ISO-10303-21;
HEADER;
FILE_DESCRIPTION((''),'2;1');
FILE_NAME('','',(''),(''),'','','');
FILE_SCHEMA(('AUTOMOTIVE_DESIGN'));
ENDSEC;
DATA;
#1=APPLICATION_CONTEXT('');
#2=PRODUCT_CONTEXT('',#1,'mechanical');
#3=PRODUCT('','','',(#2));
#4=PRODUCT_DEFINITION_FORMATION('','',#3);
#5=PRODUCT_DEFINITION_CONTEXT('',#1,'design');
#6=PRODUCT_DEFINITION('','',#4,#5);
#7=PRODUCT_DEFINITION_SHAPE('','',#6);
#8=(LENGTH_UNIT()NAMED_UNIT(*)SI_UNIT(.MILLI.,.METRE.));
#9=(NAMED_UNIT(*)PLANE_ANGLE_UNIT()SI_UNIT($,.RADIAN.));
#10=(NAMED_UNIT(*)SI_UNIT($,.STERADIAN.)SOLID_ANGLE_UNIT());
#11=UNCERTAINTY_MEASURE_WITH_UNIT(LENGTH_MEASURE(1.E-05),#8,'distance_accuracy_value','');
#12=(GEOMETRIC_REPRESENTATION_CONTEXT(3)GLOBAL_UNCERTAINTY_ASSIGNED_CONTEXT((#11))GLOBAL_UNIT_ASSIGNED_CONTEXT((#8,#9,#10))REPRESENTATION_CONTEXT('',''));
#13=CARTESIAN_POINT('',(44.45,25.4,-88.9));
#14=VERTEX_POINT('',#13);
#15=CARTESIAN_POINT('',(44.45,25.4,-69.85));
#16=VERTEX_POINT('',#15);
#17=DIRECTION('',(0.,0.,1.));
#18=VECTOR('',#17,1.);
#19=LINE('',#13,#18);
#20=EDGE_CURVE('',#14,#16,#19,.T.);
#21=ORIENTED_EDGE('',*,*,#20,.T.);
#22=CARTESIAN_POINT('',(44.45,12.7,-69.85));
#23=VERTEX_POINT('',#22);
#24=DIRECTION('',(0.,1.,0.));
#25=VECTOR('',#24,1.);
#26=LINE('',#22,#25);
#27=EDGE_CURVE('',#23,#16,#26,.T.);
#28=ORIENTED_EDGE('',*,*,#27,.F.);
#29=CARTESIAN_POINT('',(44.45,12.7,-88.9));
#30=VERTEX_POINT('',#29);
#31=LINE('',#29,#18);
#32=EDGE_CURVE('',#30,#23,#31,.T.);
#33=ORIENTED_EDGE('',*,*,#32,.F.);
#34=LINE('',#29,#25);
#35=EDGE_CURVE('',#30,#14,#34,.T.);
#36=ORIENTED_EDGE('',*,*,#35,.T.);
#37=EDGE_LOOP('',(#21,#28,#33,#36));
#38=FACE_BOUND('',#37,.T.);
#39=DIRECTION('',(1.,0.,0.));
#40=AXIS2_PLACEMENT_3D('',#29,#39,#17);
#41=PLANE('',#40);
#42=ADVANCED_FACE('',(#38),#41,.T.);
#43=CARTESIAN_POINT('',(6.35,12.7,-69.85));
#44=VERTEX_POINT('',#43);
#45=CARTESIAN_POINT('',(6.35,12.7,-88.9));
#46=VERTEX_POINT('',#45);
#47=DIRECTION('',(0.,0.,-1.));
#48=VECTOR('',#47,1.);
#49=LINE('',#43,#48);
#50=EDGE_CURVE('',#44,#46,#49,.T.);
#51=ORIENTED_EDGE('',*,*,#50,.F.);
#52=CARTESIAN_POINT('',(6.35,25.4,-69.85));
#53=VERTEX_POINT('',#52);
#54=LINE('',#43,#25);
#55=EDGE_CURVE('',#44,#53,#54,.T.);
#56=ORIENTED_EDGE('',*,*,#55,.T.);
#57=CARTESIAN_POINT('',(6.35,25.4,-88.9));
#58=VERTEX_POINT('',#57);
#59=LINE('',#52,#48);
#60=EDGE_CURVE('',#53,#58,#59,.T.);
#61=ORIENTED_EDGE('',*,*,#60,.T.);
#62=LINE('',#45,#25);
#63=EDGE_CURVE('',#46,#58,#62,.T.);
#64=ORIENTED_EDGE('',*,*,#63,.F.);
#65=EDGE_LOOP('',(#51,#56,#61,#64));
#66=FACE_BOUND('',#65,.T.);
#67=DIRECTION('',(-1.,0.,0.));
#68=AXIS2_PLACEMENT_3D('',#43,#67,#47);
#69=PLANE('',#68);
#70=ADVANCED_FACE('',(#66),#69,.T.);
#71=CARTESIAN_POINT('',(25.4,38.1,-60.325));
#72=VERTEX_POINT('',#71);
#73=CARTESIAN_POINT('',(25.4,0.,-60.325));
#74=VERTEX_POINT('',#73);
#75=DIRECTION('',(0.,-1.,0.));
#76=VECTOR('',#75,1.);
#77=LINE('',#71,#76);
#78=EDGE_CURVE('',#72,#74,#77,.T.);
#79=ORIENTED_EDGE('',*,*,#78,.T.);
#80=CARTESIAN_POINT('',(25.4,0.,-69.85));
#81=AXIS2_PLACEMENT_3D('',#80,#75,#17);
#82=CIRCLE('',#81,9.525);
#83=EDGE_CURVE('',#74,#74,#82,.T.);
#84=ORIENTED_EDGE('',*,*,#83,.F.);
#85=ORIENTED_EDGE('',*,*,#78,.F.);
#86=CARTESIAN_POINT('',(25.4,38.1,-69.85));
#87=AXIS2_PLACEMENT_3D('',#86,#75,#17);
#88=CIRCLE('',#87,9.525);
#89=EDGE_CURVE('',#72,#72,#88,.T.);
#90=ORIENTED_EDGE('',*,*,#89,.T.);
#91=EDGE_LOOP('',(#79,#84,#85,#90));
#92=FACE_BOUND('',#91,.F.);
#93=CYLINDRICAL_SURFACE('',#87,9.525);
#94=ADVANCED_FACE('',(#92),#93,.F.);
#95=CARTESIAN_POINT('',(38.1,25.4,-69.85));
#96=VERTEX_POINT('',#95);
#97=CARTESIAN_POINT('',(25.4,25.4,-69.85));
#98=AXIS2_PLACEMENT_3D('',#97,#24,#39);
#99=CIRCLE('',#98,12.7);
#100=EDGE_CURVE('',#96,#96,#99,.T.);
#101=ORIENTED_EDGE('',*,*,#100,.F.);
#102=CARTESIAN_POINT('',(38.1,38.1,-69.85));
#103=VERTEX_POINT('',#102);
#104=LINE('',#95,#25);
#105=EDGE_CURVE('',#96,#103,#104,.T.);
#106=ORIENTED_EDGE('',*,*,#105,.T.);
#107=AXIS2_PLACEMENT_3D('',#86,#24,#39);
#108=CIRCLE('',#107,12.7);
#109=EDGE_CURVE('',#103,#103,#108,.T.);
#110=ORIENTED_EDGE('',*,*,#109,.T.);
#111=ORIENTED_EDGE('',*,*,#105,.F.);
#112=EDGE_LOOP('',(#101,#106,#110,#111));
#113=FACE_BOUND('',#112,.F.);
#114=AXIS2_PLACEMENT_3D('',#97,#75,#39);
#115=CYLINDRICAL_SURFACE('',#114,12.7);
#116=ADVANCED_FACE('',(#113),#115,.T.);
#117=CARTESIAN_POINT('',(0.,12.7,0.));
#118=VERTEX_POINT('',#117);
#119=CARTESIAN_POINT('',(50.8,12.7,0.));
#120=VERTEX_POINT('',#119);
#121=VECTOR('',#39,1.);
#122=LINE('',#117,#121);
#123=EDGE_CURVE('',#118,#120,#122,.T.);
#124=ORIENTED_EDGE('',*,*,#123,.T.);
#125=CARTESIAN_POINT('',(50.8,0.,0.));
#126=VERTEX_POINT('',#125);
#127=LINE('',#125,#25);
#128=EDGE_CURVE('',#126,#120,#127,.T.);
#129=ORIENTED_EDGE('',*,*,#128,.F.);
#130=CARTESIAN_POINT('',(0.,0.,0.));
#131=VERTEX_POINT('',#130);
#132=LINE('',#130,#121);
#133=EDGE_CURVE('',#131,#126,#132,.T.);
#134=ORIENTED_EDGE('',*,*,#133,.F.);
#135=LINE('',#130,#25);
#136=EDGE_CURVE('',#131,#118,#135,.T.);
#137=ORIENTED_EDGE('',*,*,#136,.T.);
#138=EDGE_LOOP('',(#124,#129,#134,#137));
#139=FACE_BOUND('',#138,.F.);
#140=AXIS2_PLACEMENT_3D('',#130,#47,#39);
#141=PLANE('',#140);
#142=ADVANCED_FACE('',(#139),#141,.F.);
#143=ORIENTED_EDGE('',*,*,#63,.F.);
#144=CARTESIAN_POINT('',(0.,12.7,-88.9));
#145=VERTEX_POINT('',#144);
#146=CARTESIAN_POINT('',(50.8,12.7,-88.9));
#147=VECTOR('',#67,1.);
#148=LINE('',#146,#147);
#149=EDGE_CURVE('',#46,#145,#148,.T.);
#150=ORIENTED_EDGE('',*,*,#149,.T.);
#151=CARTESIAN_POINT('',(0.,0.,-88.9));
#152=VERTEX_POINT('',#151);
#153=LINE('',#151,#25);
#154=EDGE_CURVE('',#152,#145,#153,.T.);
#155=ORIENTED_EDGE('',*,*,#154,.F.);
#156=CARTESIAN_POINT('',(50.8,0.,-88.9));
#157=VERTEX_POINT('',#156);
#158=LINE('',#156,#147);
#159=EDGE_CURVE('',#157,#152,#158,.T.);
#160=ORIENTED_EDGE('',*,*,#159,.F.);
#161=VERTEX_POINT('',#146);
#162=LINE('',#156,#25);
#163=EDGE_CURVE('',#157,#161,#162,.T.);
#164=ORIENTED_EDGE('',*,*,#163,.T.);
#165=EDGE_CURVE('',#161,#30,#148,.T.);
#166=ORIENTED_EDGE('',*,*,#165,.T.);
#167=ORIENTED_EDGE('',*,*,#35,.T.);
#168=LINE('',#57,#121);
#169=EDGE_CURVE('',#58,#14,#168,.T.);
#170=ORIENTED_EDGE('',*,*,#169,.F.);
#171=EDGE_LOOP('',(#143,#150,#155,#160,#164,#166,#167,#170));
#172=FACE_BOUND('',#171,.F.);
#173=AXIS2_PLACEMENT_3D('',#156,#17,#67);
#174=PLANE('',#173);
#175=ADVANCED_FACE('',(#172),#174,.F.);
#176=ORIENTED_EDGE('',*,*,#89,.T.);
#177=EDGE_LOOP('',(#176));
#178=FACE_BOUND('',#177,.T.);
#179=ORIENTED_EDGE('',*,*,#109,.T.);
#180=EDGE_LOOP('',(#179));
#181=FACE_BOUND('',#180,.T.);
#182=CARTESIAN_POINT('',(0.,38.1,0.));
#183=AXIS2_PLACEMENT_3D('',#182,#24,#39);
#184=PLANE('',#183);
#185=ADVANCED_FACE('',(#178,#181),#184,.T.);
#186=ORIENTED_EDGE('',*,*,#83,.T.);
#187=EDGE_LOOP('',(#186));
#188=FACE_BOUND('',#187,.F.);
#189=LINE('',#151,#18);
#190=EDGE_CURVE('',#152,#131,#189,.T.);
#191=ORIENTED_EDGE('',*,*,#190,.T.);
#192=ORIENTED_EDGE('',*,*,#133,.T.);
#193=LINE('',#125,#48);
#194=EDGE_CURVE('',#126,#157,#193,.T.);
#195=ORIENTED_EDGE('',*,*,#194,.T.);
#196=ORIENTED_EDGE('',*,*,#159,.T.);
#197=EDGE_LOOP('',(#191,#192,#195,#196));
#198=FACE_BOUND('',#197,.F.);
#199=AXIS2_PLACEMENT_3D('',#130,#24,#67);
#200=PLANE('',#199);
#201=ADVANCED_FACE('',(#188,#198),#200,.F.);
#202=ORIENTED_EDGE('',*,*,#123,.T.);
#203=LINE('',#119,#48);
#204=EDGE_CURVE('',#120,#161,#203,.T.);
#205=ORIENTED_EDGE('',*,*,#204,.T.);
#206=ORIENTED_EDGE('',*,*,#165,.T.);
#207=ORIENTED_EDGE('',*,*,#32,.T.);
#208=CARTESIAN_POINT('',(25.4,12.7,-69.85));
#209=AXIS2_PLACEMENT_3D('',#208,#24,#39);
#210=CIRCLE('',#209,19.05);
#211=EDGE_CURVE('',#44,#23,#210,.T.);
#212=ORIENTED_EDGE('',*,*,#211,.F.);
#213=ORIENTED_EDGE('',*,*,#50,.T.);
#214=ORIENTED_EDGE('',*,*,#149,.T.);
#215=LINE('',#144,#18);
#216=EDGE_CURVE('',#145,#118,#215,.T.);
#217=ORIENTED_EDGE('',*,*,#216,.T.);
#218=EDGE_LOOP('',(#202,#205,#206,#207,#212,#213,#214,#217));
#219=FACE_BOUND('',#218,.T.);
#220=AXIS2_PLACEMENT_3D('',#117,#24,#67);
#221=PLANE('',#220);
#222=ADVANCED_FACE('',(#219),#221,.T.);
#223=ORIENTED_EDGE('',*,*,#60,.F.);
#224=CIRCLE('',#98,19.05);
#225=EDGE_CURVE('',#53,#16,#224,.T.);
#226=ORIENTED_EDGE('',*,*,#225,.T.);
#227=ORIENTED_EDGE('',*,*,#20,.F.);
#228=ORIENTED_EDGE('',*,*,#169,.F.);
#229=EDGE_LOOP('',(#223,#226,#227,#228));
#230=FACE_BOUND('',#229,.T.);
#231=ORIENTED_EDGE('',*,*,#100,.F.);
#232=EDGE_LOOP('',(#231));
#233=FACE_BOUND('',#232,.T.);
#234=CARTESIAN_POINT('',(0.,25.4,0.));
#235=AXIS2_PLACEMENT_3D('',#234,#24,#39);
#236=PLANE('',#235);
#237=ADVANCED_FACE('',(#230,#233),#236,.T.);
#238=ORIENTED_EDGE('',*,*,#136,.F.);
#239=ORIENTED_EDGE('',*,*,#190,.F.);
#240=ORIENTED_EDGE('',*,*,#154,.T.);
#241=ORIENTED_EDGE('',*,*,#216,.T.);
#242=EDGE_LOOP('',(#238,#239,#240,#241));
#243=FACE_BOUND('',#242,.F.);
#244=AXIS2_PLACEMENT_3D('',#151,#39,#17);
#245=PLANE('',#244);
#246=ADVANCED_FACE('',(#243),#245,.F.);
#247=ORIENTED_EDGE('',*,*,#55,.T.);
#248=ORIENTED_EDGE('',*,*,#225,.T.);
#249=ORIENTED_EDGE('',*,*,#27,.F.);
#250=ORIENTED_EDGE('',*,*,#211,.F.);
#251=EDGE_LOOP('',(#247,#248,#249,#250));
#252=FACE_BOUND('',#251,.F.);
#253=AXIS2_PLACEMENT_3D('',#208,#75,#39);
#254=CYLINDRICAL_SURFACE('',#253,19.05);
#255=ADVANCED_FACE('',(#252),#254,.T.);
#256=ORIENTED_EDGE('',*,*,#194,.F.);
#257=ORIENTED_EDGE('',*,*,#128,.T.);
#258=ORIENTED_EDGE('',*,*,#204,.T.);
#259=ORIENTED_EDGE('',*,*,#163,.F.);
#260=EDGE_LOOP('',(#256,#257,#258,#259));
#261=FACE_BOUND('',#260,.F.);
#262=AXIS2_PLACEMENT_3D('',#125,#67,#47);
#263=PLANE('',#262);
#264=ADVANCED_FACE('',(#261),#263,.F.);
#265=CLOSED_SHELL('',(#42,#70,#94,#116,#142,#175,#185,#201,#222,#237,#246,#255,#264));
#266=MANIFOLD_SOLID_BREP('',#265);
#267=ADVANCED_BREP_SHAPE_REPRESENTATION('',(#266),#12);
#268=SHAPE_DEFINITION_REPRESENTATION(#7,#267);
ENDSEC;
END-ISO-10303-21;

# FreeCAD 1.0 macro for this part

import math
import FreeCAD as App
import Part
import Sketcher

V = App.Vector
Q = App.Units.Quantity

doc = App.newDocument("Part")
body = doc.addObject("PartDesign::Body", "Body")

# Sketch on XZ plane
sketch1 = doc.addObject("Sketcher::SketchObject", "Sketch")
body.addObject(sketch1)
sketch1.AttachmentSupport = (doc.XZ_Plane, [""])
sketch1.MapMode = "FlatFace"
sketch1.addGeometry([
    Part.LineSegment(V(0, -89, 0), V(0, 0, 0)),
    Part.LineSegment(V(0, 0, 0), V(51, 0, 0)),
    Part.LineSegment(V(51, 0, 0), V(51, -89, 0)),
    Part.LineSegment(V(51, -89, 0), V(0, -89, 0)),
], False)
sketch1.addConstraint([
    Sketcher.Constraint("Coincident", 0, 2, 1, 1),
    Sketcher.Constraint("Coincident", 1, 2, 2, 1),
    Sketcher.Constraint("Coincident", 2, 2, 3, 1),
    Sketcher.Constraint("Coincident", 3, 2, 0, 1),
    Sketcher.Constraint("Vertical", 0),
    Sketcher.Constraint("Horizontal", 1),
    Sketcher.Constraint("Vertical", 2),
    Sketcher.Constraint("Horizontal", 3),
    Sketcher.Constraint("Coincident", 0, 2, -1, 1),
    Sketcher.Constraint("DistanceX", 1, 1, 1, 2, Q("2 in")),
    Sketcher.Constraint("DistanceY", 0, 1, 0, 2, Q("3.5 in")),
])
pad1 = doc.addObject("PartDesign::Pad", "Pad")
body.addObject(pad1)
pad1.Profile = sketch1
pad1.Length = Q("0.5 in")
pad1.Reversed = True

# Sketch on XZ plane
sketch2 = doc.addObject("Sketcher::SketchObject", "Sketch001")
body.addObject(sketch2)
sketch2.AttachmentSupport = (doc.XZ_Plane, [""])
sketch2.MapMode = "FlatFace"
sketch2.AttachmentOffset = App.Placement(V(0, 0, -0.5 * 25.4), App.Rotation())
sketch2.addGeometry([
    Part.LineSegment(V(44, -70, 0), V(44, -89, 0)),
    Part.LineSegment(V(44, -89, 0), V(6, -89, 0)),
    Part.LineSegment(V(6, -89, 0), V(6, -70, 0)),
    Part.ArcOfCircle(Part.Circle(V(25, -70, 0), V(0, 0, 1), 19), math.radians(0), math.radians(180)),
], False)
sketch2.addConstraint([
    Sketcher.Constraint("Coincident", 0, 2, 1, 1),
    Sketcher.Constraint("Coincident", 1, 2, 2, 1),
    Sketcher.Constraint("Tangent", 2, 2, 3, 2),
    Sketcher.Constraint("Tangent", 3, 1, 0, 1),
    Sketcher.Constraint("Vertical", 0),
    Sketcher.Constraint("Horizontal", 1),
    Sketcher.Constraint("Vertical", 2),
    Sketcher.Constraint("Radius", 3, Q("0.75 in")),
    Sketcher.Constraint("DistanceY", 0, 2, 0, 1, Q("0.75 in")),
    Sketcher.Constraint("DistanceX", -1, 1, 1, 2, Q("0.25 in")),
    Sketcher.Constraint("DistanceY", 0, 2, -1, 1, Q("3.5 in")),
])
pad2 = doc.addObject("PartDesign::Pad", "Pad001")
body.addObject(pad2)
pad2.Profile = sketch2
pad2.Length = Q("0.5 in")
pad2.Reversed = True

# Sketch on XZ plane
sketch3 = doc.addObject("Sketcher::SketchObject", "Sketch002")
body.addObject(sketch3)
sketch3.AttachmentSupport = (doc.XZ_Plane, [""])
sketch3.MapMode = "FlatFace"
sketch3.AttachmentOffset = App.Placement(V(0, 0, -1 * 25.4), App.Rotation())
sketch3.addGeometry(Part.Circle(V(25, -70, 0), V(0, 0, 1), 13), False)
sketch3.addConstraint([
    Sketcher.Constraint("Diameter", 0, Q("1 in")),
    Sketcher.Constraint("DistanceX", -1, 1, 0, 3, Q("1 in")),
    Sketcher.Constraint("DistanceY", 0, 3, -1, 1, Q("2.75 in")),
])
pad3 = doc.addObject("PartDesign::Pad", "Pad002")
body.addObject(pad3)
pad3.Profile = sketch3
pad3.Length = Q("0.5 in")
pad3.Reversed = True

# Sketch on XZ plane
sketch4 = doc.addObject("Sketcher::SketchObject", "Sketch003")
body.addObject(sketch4)
sketch4.AttachmentSupport = (doc.XZ_Plane, [""])
sketch4.MapMode = "FlatFace"
sketch4.AttachmentOffset = App.Placement(V(0, 0, -1.5 * 25.4), App.Rotation())
sketch4.addGeometry(Part.Circle(V(25, -70, 0), V(0, 0, 1), 10), False)
sketch4.addConstraint([
    Sketcher.Constraint("Diameter", 0, Q("0.75 in")),
    Sketcher.Constraint("DistanceX", -1, 1, 0, 3, Q("1 in")),
    Sketcher.Constraint("DistanceY", 0, 3, -1, 1, Q("2.75 in")),
])
doc.recompute()
hole = doc.addObject("PartDesign::Hole", "Hole")
body.addObject(hole)
hole.Profile = sketch4
hole.ThreadType = "None"
hole.Diameter = Q("0.75 in")
hole.DepthType = "ThroughAll"
hole.Reversed = True

doc.recompute()
